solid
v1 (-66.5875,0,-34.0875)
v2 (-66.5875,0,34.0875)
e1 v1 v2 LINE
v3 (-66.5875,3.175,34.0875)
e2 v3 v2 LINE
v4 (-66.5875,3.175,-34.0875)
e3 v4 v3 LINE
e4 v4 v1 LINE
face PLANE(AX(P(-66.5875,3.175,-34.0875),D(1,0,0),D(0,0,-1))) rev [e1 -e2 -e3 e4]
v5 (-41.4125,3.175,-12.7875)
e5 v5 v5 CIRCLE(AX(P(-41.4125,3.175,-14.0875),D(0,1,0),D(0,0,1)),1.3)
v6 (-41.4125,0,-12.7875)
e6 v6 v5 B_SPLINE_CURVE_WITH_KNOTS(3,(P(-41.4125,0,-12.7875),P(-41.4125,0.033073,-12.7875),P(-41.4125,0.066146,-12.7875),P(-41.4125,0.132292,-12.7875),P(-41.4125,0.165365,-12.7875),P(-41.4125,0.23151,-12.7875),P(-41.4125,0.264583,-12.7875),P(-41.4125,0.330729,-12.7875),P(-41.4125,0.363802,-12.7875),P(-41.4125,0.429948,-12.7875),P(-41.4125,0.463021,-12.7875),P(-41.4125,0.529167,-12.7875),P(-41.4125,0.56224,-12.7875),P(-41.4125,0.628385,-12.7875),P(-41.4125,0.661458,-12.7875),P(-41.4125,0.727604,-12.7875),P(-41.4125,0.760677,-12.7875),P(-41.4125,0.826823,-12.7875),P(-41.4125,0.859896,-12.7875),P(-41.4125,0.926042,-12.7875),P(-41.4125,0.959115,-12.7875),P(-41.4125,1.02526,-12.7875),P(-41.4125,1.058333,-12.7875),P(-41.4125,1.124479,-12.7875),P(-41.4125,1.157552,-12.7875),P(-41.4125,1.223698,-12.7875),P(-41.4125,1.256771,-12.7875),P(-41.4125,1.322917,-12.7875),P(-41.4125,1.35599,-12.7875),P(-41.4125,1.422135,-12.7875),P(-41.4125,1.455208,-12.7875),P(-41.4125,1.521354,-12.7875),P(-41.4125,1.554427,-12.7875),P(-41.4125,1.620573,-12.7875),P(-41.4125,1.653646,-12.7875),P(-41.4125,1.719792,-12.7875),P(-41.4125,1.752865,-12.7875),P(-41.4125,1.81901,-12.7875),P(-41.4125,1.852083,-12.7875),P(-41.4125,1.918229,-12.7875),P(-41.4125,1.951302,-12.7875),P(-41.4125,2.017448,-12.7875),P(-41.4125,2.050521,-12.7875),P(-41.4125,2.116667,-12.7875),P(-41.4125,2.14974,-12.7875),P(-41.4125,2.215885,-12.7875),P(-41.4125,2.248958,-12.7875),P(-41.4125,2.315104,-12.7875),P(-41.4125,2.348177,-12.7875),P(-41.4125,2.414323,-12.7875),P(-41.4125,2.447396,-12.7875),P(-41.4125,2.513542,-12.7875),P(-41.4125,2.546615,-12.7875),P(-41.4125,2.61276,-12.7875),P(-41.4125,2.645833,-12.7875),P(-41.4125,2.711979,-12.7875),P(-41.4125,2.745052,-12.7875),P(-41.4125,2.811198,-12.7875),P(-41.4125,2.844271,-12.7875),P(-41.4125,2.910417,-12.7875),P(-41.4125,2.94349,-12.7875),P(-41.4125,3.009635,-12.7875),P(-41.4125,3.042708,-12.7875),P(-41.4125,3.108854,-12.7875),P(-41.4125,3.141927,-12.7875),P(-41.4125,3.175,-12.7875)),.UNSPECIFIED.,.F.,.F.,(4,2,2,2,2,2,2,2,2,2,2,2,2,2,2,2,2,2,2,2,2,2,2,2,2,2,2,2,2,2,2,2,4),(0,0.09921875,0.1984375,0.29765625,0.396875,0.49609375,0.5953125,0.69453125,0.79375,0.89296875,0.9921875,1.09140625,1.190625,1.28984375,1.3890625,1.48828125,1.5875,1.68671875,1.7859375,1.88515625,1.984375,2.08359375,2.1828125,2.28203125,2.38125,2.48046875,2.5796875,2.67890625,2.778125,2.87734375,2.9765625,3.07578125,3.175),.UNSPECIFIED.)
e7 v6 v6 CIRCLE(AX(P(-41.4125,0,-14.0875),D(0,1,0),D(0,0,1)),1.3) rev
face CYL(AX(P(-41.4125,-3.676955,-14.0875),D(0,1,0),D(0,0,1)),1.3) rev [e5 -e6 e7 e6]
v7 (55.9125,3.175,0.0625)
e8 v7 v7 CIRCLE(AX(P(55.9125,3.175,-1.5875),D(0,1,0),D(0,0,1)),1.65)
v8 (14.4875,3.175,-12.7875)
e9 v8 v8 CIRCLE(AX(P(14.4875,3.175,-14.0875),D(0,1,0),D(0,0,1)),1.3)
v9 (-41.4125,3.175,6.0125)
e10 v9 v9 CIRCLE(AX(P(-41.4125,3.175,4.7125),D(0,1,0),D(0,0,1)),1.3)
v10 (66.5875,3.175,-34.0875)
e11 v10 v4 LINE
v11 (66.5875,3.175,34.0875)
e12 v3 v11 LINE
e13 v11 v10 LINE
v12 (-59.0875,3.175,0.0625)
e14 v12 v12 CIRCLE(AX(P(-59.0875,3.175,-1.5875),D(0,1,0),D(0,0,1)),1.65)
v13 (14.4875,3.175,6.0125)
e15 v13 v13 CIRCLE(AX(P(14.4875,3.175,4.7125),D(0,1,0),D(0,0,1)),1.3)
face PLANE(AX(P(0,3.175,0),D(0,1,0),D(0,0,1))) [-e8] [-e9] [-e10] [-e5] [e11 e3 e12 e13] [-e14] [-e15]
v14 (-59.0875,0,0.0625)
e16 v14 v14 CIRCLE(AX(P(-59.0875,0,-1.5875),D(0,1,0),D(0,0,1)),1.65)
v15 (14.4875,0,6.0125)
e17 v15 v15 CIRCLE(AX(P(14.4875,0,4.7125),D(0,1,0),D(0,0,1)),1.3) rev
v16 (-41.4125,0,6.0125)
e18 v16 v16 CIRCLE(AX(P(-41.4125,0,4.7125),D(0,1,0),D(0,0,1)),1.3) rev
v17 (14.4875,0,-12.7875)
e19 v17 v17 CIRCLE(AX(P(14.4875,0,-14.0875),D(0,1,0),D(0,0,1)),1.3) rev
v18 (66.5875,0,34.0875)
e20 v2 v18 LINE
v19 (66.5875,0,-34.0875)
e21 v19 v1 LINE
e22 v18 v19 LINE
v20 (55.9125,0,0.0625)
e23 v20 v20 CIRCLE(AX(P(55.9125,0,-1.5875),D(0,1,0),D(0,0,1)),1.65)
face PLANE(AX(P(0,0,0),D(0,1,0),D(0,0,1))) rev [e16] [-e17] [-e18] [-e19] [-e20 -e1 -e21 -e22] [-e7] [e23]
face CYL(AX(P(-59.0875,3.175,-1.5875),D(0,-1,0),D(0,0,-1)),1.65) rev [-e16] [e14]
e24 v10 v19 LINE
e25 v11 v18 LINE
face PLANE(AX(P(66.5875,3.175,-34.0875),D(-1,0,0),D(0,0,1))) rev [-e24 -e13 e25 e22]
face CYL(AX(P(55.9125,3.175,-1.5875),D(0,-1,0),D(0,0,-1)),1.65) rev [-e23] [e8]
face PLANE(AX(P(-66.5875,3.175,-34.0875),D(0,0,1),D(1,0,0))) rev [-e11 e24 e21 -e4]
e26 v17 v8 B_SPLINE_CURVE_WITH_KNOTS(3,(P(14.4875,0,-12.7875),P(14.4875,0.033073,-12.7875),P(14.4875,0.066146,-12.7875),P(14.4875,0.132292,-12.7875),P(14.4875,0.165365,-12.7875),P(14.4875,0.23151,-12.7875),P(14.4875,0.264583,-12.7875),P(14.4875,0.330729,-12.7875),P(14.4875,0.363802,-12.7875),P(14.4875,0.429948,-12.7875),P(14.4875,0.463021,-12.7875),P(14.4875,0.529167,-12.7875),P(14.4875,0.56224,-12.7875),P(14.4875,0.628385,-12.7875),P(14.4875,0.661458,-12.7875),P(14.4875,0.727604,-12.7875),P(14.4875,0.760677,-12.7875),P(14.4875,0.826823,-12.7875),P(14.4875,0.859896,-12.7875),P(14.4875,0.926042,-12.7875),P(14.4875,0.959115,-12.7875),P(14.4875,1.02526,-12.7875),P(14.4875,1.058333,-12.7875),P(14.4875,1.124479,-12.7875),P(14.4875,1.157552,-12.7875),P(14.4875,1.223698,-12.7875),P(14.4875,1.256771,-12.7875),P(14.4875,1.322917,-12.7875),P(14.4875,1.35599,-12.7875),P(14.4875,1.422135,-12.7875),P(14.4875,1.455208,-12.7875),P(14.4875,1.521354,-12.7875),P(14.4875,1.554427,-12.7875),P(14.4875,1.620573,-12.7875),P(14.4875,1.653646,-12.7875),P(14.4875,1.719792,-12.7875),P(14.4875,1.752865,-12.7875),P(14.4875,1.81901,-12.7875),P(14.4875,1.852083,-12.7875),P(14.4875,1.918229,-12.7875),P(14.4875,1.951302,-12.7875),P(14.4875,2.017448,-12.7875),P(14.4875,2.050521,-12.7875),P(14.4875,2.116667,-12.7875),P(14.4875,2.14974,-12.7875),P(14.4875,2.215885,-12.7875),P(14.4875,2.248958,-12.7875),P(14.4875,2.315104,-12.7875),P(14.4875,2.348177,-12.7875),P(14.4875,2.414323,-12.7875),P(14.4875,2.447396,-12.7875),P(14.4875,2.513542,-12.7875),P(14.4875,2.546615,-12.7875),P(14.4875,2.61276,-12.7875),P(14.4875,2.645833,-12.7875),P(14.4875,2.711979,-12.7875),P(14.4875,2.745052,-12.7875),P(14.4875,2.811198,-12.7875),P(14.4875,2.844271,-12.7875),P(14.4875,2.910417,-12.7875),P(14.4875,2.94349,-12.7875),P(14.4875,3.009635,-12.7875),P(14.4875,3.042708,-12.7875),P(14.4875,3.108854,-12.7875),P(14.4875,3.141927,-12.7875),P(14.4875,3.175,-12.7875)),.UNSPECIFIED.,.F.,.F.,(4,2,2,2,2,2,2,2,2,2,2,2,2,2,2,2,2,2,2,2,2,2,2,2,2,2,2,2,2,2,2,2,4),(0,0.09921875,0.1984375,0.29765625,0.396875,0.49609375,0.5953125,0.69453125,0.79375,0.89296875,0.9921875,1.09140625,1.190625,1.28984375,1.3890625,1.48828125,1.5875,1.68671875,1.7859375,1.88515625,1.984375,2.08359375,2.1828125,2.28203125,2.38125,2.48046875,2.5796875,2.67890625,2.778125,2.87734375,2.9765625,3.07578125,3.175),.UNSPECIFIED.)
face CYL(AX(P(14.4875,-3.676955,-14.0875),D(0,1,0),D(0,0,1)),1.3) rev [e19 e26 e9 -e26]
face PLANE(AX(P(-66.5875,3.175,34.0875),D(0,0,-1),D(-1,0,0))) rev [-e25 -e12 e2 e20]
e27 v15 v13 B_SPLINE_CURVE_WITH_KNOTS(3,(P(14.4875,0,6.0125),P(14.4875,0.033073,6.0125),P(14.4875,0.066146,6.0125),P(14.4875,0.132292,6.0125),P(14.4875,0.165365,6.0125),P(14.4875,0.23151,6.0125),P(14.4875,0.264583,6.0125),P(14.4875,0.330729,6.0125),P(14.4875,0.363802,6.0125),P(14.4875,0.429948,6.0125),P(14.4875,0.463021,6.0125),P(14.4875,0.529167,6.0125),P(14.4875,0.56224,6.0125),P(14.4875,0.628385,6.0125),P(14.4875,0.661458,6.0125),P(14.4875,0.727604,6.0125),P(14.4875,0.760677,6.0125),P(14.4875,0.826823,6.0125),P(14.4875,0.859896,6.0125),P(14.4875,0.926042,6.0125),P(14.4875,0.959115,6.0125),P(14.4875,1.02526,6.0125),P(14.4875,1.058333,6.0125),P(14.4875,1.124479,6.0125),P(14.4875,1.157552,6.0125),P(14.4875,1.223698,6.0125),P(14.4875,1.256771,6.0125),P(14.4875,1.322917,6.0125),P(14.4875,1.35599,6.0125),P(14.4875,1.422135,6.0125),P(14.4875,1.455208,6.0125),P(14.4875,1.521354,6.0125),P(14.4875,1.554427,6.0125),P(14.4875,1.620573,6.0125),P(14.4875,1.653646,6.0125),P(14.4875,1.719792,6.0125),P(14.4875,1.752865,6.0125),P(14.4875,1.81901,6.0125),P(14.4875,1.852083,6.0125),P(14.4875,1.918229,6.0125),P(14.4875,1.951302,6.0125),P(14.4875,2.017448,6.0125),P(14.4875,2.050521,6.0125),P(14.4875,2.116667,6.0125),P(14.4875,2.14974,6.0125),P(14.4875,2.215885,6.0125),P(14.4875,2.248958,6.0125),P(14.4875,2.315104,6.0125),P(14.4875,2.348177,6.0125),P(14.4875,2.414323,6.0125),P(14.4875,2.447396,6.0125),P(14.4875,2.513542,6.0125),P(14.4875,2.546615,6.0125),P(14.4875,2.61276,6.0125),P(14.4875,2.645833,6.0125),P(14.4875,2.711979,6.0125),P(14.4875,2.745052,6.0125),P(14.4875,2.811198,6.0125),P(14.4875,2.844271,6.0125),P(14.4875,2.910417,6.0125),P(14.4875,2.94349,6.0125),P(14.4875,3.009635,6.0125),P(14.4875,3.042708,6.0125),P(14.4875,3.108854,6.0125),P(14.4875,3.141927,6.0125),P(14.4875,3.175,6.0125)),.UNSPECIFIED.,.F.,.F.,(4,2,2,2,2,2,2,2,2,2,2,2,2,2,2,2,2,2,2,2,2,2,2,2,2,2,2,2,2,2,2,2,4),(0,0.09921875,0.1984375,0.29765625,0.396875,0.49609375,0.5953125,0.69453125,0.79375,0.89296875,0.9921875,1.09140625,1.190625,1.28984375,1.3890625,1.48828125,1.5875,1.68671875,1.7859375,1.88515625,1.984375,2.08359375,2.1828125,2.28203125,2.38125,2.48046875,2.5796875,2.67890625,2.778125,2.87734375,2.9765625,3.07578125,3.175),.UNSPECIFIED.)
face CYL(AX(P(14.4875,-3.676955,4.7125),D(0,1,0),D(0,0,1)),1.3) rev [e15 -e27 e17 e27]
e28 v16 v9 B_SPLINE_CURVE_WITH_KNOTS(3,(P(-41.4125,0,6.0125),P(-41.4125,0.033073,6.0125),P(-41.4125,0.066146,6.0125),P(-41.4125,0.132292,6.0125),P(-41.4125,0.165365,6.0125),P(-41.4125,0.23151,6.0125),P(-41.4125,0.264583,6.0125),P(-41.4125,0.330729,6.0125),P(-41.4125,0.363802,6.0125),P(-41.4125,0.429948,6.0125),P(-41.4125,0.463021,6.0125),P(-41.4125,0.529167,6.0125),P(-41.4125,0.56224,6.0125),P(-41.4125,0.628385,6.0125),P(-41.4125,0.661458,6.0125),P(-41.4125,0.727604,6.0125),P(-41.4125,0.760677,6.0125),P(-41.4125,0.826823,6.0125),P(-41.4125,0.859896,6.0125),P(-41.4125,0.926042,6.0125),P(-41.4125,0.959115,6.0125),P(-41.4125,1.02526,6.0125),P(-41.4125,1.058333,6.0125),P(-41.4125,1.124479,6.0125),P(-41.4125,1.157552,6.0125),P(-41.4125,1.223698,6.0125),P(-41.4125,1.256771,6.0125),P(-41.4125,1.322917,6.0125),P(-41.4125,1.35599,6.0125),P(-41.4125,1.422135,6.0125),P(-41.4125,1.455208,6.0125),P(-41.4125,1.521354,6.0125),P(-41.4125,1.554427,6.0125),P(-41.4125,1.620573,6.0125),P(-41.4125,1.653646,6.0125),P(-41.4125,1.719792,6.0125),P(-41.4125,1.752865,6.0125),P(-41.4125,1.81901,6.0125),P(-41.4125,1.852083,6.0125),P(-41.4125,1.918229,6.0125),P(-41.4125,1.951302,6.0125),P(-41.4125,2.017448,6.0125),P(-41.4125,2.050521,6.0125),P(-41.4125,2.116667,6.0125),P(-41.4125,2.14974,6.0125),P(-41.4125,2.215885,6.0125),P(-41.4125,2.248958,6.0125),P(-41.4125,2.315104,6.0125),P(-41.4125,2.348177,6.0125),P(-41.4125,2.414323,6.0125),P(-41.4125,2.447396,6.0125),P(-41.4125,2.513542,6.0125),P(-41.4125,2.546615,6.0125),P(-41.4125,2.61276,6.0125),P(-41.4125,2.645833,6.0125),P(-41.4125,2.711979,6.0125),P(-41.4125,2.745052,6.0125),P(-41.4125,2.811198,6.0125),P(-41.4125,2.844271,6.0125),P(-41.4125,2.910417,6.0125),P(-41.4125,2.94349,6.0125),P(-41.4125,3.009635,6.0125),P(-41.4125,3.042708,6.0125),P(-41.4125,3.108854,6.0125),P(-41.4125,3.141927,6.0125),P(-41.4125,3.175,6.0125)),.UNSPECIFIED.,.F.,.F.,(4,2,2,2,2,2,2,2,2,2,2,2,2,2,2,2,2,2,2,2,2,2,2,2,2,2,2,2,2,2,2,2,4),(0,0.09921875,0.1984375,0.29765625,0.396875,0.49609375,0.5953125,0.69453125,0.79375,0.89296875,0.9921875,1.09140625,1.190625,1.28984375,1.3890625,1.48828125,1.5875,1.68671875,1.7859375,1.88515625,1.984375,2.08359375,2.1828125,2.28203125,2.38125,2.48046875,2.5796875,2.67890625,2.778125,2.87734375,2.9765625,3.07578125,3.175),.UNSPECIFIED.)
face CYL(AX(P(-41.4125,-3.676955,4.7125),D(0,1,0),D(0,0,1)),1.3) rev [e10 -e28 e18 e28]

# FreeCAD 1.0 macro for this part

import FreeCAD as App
import Part
import Sketcher

V = App.Vector

doc = App.newDocument("Part")
body = doc.addObject("PartDesign::Body", "Body")

# Sketch on XZ plane
sketch1 = body.newObject("Sketcher::SketchObject", "Sketch")
sketch1.AttachmentSupport = (doc.getObject("XZ_Plane"), [""])
sketch1.MapMode = "FlatFace"
sketch1.addGeometry(Part.LineSegment(V(-66.5875, -34.0875, 0), V(-66.5875, 34.0875, 0)), False)
sketch1.addGeometry(Part.LineSegment(V(-66.5875, 34.0875, 0), V(66.5875, 34.0875, 0)), False)
sketch1.addGeometry(Part.LineSegment(V(66.5875, 34.0875, 0), V(66.5875, -34.0875, 0)), False)
sketch1.addGeometry(Part.LineSegment(V(66.5875, -34.0875, 0), V(-66.5875, -34.0875, 0)), False)
sketch1.addGeometry(Part.Circle(V(-59.0875, -1.5875, 0), V(0, 0, 1), 1.65), False)
sketch1.addGeometry(Part.Circle(V(55.9125, -1.5875, 0), V(0, 0, 1), 1.65), False)
sketch1.addConstraint(Sketcher.Constraint("Coincident", 0, 2, 1, 1))
sketch1.addConstraint(Sketcher.Constraint("Coincident", 1, 2, 2, 1))
sketch1.addConstraint(Sketcher.Constraint("Coincident", 2, 2, 3, 1))
sketch1.addConstraint(Sketcher.Constraint("Coincident", 3, 2, 0, 1))
sketch1.addConstraint(Sketcher.Constraint("Vertical", 0))
sketch1.addConstraint(Sketcher.Constraint("Horizontal", 1))
sketch1.addConstraint(Sketcher.Constraint("Vertical", 2))
sketch1.addConstraint(Sketcher.Constraint("Horizontal", 3))
sketch1.addConstraint(Sketcher.Constraint("Equal", 4, 5))
sketch1.addConstraint(Sketcher.Constraint("Symmetric", 0, 2, 2, 2, -1, 1))
sketch1.addConstraint(Sketcher.Constraint("Horizontal", 4, 3, 5, 3))
sketch1.addConstraint(Sketcher.Constraint("Diameter", 4, 3.3))
sketch1.addConstraint(Sketcher.Constraint("DistanceX", 4, 3, 5, 3, 115.0))
sketch1.addConstraint(Sketcher.Constraint("DistanceX", 0, 2, 4, 3, 7.5))
sketch1.addConstraint(Sketcher.Constraint("DistanceY", 2, 2, 5, 3, 32.5))
sketch1.addConstraint(Sketcher.Constraint("DistanceX", 1, 1, 1, 2, 133.175))
sketch1.addConstraint(Sketcher.Constraint("DistanceY", 0, 1, 0, 2, 68.175))
pad1 = body.newObject("PartDesign::Pad", "Pad")
pad1.Profile = sketch1
pad1.Length = 3.175
pad1.Reversed = True

# Sketch on XZ plane
sketch2 = body.newObject("Sketcher::SketchObject", "Sketch001")
sketch2.AttachmentSupport = (doc.getObject("XZ_Plane"), [""])
sketch2.MapMode = "FlatFace"
sketch2.AttachmentOffset = App.Placement(V(0, 0, -3.175), App.Rotation())
sketch2.addGeometry(Part.Circle(V(14.4875, 4.7125, 0), V(0, 0, 1), 1.3), False)
sketch2.addGeometry(Part.Circle(V(-41.4125, 4.7125, 0), V(0, 0, 1), 1.3), False)
sketch2.addGeometry(Part.Circle(V(-41.4125, -14.0875, 0), V(0, 0, 1), 1.3), False)
sketch2.addGeometry(Part.Circle(V(14.4875, -14.0875, 0), V(0, 0, 1), 1.3), False)
sketch2.addConstraint(Sketcher.Constraint("Equal", 0, 1))
sketch2.addConstraint(Sketcher.Constraint("Equal", 1, 2))
sketch2.addConstraint(Sketcher.Constraint("Equal", 2, 3))
sketch2.addConstraint(Sketcher.Constraint("Horizontal", 0, 3, 1, 3))
sketch2.addConstraint(Sketcher.Constraint("Horizontal", 2, 3, 3, 3))
sketch2.addConstraint(Sketcher.Constraint("Vertical", 1, 3, 2, 3))
sketch2.addConstraint(Sketcher.Constraint("Vertical", 0, 3, 3, 3))
sketch2.addConstraint(Sketcher.Constraint("Diameter", 0, 2.6))
sketch2.addConstraint(Sketcher.Constraint("DistanceX", 1, 3, 0, 3, 55.9))
sketch2.addConstraint(Sketcher.Constraint("DistanceY", 2, 3, 1, 3, 18.8))
sketch2.addConstraint(Sketcher.Constraint("DistanceX", -1, 1, 0, 3, 14.4875))
sketch2.addConstraint(Sketcher.Constraint("DistanceY", -1, 1, 0, 3, 4.7125))
pocket1 = body.newObject("PartDesign::Pocket", "Pocket")
pocket1.Profile = sketch2
pocket1.Length = 3.175
pocket1.Reversed = True

doc.recompute()
